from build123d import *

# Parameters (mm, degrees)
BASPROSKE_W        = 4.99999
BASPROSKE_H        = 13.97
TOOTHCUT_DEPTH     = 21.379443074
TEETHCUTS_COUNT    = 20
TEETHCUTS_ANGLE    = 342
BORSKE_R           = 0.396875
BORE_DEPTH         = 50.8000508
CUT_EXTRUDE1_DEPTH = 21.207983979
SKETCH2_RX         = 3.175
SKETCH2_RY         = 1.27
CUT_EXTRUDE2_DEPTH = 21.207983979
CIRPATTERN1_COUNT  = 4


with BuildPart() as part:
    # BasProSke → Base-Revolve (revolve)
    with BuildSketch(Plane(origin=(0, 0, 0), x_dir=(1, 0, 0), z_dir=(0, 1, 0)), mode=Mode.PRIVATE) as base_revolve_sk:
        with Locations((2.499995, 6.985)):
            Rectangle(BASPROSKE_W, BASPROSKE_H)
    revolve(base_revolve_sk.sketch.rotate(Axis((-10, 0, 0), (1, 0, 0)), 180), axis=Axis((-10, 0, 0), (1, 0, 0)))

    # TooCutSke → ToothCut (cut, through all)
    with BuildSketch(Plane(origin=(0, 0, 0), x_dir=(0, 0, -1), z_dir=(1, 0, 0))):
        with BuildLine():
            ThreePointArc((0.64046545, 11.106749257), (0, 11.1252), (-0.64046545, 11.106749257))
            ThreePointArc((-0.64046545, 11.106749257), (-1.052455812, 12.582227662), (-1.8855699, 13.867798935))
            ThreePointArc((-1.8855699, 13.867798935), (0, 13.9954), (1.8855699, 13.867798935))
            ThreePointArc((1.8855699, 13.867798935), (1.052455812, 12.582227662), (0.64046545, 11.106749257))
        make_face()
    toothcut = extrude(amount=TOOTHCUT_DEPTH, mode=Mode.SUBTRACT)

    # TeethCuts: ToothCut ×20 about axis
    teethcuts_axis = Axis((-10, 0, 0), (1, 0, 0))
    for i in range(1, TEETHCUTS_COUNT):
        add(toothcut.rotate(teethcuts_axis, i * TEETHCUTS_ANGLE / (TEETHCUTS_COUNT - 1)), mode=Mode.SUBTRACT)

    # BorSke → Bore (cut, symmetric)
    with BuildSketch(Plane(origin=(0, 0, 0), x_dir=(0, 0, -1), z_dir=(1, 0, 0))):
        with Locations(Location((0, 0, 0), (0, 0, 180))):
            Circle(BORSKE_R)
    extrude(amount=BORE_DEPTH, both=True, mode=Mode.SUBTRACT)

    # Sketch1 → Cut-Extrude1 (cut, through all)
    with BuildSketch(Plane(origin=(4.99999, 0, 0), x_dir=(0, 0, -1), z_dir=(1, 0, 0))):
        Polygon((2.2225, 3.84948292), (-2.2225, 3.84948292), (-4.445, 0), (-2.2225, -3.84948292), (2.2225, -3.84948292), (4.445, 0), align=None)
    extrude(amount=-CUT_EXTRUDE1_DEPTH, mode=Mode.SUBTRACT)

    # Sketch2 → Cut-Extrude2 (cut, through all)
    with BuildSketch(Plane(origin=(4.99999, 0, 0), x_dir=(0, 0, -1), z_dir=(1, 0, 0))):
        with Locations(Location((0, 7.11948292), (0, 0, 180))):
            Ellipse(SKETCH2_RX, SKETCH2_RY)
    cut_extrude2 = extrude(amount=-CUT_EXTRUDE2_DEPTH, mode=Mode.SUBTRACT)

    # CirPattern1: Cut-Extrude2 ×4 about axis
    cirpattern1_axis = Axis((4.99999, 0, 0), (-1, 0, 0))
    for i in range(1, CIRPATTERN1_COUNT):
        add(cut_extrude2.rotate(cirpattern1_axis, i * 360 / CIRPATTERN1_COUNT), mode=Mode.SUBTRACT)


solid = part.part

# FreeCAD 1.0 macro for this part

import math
import FreeCAD as App
import Part
import Sketcher

V = App.Vector
Q = App.Units.Quantity

doc = App.newDocument("Part")
body = doc.addObject("PartDesign::Body", "Body")

# Sketch on XZ plane
sketch1 = body.newObject("Sketcher::SketchObject", "Sketch")
sketch1.AttachmentSupport = (doc.getObject("XZ_Plane"), [""])
sketch1.MapMode = "FlatFace"
sketch1.addGeometry(Part.LineSegment(V(0, -13.97, 0), V(0, 0, 0)), False)
sketch1.addGeometry(Part.LineSegment(V(0, 0, 0), V(4.99999, 0, 0)), False)
sketch1.addGeometry(Part.LineSegment(V(4.99999, 0, 0), V(4.99999, -13.97, 0)), False)
sketch1.addGeometry(Part.LineSegment(V(4.99999, -13.97, 0), V(0, -13.97, 0)), False)
sketch1.addConstraint(Sketcher.Constraint("Coincident", 0, 2, 1, 1))
sketch1.addConstraint(Sketcher.Constraint("Coincident", 1, 2, 2, 1))
sketch1.addConstraint(Sketcher.Constraint("Coincident", 2, 2, 3, 1))
sketch1.addConstraint(Sketcher.Constraint("Coincident", 3, 2, 0, 1))
sketch1.addConstraint(Sketcher.Constraint("Vertical", 0))
sketch1.addConstraint(Sketcher.Constraint("Horizontal", 1))
sketch1.addConstraint(Sketcher.Constraint("Vertical", 2))
sketch1.addConstraint(Sketcher.Constraint("Horizontal", 3))
sketch1.addConstraint(Sketcher.Constraint("Coincident", 0, 2, -1, 1))
sketch1.addConstraint(Sketcher.Constraint("DistanceY", 0, 1, 0, 2, Q("0.55 in")))
sketch1.addConstraint(Sketcher.Constraint("DistanceX", 1, 1, 1, 2, 4.99999))
revolution = body.newObject("PartDesign::Revolution", "Revolution")
revolution.Profile = sketch1
revolution.ReferenceAxis = (sketch1, ["H_Axis"])
revolution.Angle = 360

# Sketch on YZ plane
sketch2 = body.newObject("Sketcher::SketchObject", "Sketch001")
sketch2.AttachmentSupport = (doc.getObject("YZ_Plane"), [""])
sketch2.MapMode = "FlatFace"
sketch2.addGeometry(Part.ArcOfCircle(Part.Circle(V(0, 0, 0), V(0, 0, 1), 11.1252), math.radians(-3.300279), math.radians(3.300279)), False)
sketch2.addGeometry(Part.ArcOfCircle(Part.Circle(V(10.493905, -5.683364, 0), V(0, 0, 1), 5.08), math.radians(48.382665), math.radians(83.071034)), False)
sketch2.addGeometry(Part.ArcOfCircle(Part.Circle(V(0, 0, 0), V(0, 0, 1), 13.9954), math.radians(-7.742882), math.radians(7.742882)), False)
sketch2.addGeometry(Part.ArcOfCircle(Part.Circle(V(10.493905, 5.683364, 0), V(0, 0, 1), 5.08), math.radians(-83.071034), math.radians(-48.382665)), False)
sketch2.addConstraint(Sketcher.Constraint("Coincident", 0, 1, 1, 2))
sketch2.addConstraint(Sketcher.Constraint("Coincident", 1, 1, 2, 1))
sketch2.addConstraint(Sketcher.Constraint("Coincident", 2, 2, 3, 2))
sketch2.addConstraint(Sketcher.Constraint("Coincident", 3, 1, 0, 2))
sketch2.addConstraint(Sketcher.Constraint("Coincident", 0, 3, -1, 1))
sketch2.addConstraint(Sketcher.Constraint("Coincident", 2, 3, -1, 1))
sketch2.addConstraint(Sketcher.Constraint("Equal", 1, 3))
sketch2.addConstraint(Sketcher.Constraint("Symmetric", 1, 3, 3, 3, -1))
sketch2.addConstraint(Sketcher.Constraint("Radius", 1, Q("0.2 in")))
sketch2.addConstraint(Sketcher.Constraint("Radius", 0, Q("0.438 in")))
sketch2.addConstraint(Sketcher.Constraint("Radius", 2, Q("0.551 in")))
sketch2.addConstraint(Sketcher.Constraint("DistanceX", -1, 1, 1, 1, 13.867799))
sketch2.addConstraint(Sketcher.Constraint("DistanceY", 1, 3, 0, 1, 5.042898))
pocket1 = body.newObject("PartDesign::Pocket", "Pocket")
pocket1.Profile = sketch2
pocket1.Type = "ThroughAll"
pocket1.Reversed = True
doc.recompute()

polarpattern = body.newObject("PartDesign::PolarPattern", "PolarPattern")
polarpattern.Originals = [pocket1]
polarpattern.Axis = (doc.getObject("X_Axis"), [""])
polarpattern.Angle = 360
polarpattern.Occurrences = 20
body.Tip = polarpattern

# Sketch on YZ plane
sketch3 = body.newObject("Sketcher::SketchObject", "Sketch002")
sketch3.AttachmentSupport = (doc.getObject("YZ_Plane"), [""])
sketch3.MapMode = "FlatFace"
sketch3.addGeometry(Part.Circle(V(0, 0, 0), V(0, 0, 1), 0.396875), False)
sketch3.addConstraint(Sketcher.Constraint("Coincident", 0, 3, -1, 1))
sketch3.addConstraint(Sketcher.Constraint("Diameter", 0, Q("0.03125 in")))
pocket2 = body.newObject("PartDesign::Pocket", "Pocket001")
pocket2.Profile = sketch3
pocket2.Length = 101.600102
pocket2.Midplane = True

# Sketch on YZ plane
sketch4 = body.newObject("Sketcher::SketchObject", "Sketch003")
sketch4.AttachmentSupport = (doc.getObject("YZ_Plane"), [""])
sketch4.MapMode = "FlatFace"
sketch4.AttachmentOffset = App.Placement(V(0, 0, 4.99999), App.Rotation())
sketch4.addGeometry(Part.LineSegment(V(3.849483, -2.2225, 0), V(3.849483, 2.2225, 0)), False)
sketch4.addGeometry(Part.LineSegment(V(3.849483, 2.2225, 0), V(0, 4.445, 0)), False)
sketch4.addGeometry(Part.LineSegment(V(0, 4.445, 0), V(-3.849483, 2.2225, 0)), False)
sketch4.addGeometry(Part.LineSegment(V(-3.849483, 2.2225, 0), V(-3.849483, -2.2225, 0)), False)
sketch4.addGeometry(Part.LineSegment(V(-3.849483, -2.2225, 0), V(0, -4.445, 0)), False)
sketch4.addGeometry(Part.LineSegment(V(0, -4.445, 0), V(3.849483, -2.2225, 0)), False)
sketch4.addConstraint(Sketcher.Constraint("Coincident", 0, 2, 1, 1))
sketch4.addConstraint(Sketcher.Constraint("Coincident", 1, 2, 2, 1))
sketch4.addConstraint(Sketcher.Constraint("Coincident", 2, 2, 3, 1))
sketch4.addConstraint(Sketcher.Constraint("Coincident", 3, 2, 4, 1))
sketch4.addConstraint(Sketcher.Constraint("Coincident", 4, 2, 5, 1))
sketch4.addConstraint(Sketcher.Constraint("Coincident", 5, 2, 0, 1))
sketch4.addConstraint(Sketcher.Constraint("Vertical", 0))
sketch4.addConstraint(Sketcher.Constraint("Vertical", 3))
sketch4.addConstraint(Sketcher.Constraint("Symmetric", 0, 2, 3, 2, -1, 1))
sketch4.addConstraint(Sketcher.Constraint("Symmetric", 1, 2, 4, 2, -1, 1))
sketch4.addConstraint(Sketcher.Constraint("PointOnObject", 1, 2, -2))
sketch4.addConstraint(Sketcher.Constraint("Parallel", 2, 5))
sketch4.addConstraint(Sketcher.Constraint("Horizontal", 0, 2, 2, 2))
sketch4.addConstraint(Sketcher.Constraint("Angle", 1, Q("150 deg")))
sketch4.addConstraint(Sketcher.Constraint("DistanceY", 0, 1, 0, 2, Q("0.175 in")))
sketch4.addConstraint(Sketcher.Constraint("DistanceY", 4, 2, 1, 2, Q("0.35 in")))
pocket3 = body.newObject("PartDesign::Pocket", "Pocket002")
pocket3.Profile = sketch4
pocket3.Type = "ThroughAll"

# Sketch on YZ plane
sketch5 = body.newObject("Sketcher::SketchObject", "Sketch004")
sketch5.AttachmentSupport = (doc.getObject("YZ_Plane"), [""])
sketch5.MapMode = "FlatFace"
sketch5.AttachmentOffset = App.Placement(V(0, 0, 4.99999), App.Rotation())
sketch5.addGeometry(Part.Ellipse(V(7.119483, 3.175, 0), V(5.849483, 0, 0), V(7.119483, 0, 0)), False)
sketch5.addConstraint(Sketcher.Constraint("Block", 0))
pocket4 = body.newObject("PartDesign::Pocket", "Pocket003")
pocket4.Profile = sketch5
pocket4.Type = "ThroughAll"
doc.recompute()

polarpattern2 = body.newObject("PartDesign::PolarPattern", "PolarPattern001")
polarpattern2.Originals = [pocket4]
polarpattern2.Axis = (doc.getObject("X_Axis"), [""])
polarpattern2.Angle = 360
polarpattern2.Occurrences = 4
body.Tip = polarpattern2

doc.recompute()
